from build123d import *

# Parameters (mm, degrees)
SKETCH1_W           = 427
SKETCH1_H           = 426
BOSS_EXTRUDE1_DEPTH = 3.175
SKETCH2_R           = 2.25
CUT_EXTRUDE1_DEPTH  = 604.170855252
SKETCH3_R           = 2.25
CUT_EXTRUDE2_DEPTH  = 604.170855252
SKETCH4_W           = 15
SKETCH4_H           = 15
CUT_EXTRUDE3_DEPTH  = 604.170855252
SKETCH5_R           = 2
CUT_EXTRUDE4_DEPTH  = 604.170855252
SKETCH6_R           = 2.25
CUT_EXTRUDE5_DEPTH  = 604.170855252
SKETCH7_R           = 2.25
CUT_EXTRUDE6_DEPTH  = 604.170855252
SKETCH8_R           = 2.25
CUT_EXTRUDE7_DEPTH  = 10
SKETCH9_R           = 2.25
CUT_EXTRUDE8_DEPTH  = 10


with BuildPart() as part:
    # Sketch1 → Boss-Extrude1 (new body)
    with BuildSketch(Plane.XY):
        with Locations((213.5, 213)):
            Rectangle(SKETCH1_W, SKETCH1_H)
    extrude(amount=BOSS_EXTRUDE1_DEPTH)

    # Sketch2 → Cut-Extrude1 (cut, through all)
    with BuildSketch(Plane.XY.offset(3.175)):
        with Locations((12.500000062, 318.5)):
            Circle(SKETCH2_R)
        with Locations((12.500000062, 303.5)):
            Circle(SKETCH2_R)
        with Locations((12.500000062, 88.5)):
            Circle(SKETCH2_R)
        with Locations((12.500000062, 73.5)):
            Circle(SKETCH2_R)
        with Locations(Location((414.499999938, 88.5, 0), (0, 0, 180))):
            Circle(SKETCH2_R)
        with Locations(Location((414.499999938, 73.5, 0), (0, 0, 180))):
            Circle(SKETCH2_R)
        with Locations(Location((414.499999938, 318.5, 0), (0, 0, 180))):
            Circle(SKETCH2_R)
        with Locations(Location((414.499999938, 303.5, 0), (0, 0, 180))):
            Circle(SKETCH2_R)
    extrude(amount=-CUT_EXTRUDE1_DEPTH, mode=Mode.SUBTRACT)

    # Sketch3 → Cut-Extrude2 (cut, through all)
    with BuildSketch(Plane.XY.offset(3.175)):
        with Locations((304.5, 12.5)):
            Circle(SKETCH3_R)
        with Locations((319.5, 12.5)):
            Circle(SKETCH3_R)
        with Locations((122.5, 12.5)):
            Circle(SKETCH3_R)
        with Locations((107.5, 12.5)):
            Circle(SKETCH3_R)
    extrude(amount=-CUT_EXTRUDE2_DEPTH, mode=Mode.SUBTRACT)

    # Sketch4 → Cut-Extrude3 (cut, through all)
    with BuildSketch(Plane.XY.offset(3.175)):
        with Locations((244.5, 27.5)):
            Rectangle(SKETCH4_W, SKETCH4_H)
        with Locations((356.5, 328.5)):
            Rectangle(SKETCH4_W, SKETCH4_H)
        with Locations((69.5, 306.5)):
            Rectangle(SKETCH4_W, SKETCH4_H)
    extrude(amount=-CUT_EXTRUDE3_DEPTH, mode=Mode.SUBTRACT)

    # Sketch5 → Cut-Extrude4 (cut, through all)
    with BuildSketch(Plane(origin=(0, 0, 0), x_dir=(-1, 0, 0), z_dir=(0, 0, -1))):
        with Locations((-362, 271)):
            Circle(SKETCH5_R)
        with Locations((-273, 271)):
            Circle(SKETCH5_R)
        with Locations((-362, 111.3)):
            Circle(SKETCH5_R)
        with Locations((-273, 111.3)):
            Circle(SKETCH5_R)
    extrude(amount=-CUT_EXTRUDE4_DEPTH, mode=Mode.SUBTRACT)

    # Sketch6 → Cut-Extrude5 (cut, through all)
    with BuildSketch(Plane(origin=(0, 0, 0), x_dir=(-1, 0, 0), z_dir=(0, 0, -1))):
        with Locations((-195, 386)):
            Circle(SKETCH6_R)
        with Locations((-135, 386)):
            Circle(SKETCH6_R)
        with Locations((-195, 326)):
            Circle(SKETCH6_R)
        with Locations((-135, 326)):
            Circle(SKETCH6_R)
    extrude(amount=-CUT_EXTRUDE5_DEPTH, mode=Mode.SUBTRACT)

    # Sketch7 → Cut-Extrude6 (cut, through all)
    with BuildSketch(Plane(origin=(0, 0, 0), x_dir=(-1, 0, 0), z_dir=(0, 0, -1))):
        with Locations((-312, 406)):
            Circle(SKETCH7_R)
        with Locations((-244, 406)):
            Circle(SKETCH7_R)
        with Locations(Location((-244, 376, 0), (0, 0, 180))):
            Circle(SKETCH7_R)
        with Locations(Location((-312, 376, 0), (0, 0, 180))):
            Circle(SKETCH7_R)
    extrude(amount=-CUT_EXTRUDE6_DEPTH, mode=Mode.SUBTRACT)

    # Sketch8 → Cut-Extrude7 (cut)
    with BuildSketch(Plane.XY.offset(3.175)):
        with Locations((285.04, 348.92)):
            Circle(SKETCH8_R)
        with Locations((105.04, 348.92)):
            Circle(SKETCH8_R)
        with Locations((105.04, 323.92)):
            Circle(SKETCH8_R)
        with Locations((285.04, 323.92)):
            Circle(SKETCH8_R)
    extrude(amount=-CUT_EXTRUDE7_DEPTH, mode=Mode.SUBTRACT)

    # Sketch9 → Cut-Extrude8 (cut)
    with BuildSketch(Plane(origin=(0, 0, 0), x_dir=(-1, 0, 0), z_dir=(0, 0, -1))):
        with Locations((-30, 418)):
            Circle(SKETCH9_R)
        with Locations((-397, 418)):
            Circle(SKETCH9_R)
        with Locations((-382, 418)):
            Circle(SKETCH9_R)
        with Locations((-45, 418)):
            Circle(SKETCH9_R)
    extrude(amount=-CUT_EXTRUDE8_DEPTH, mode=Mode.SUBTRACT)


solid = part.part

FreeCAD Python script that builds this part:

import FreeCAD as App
import Part
import Sketcher


def add_polygon(sketch, points):
    """Adds a closed chain of lines whose ends are joined by coincident constraints."""
    first, n = sketch.GeometryCount, len(points)
    for a, b in zip(points, points[1:] + points[:1]):
        sketch.addGeometry(Part.LineSegment(App.Vector(*a, 0), App.Vector(*b, 0)), False)
    for i in range(n):
        sketch.addConstraint(Sketcher.Constraint("Coincident", first + i, 2, first + (i + 1) % n, 1))

doc = App.newDocument("Part")
params = doc.addObject("Spreadsheet::Sheet", "Params")
for row, (alias, value) in enumerate([
    ("sketch1_width", "427 mm"),
    ("sketch1_height", "426 mm"),
    ("pad1_length", "3.175 mm"),
    ("sketch2_diameter", "4.5 mm"),
    ("sketch3_diameter", "4.5 mm"),
    ("sketch4_width", "15 mm"),
    ("sketch5_diameter", "4 mm"),
    ("sketch6_diameter", "4.5 mm"),
    ("sketch7_diameter", "4.5 mm"),
    ("sketch8_diameter", "4.5 mm"),
    ("pocket7_length", "10 mm"),
    ("sketch9_diameter", "4.5 mm"),
    ("pocket8_length", "10 mm"),
], start=1):
    params.set(f"A{row}", alias)
    params.set(f"B{row}", "=" + value)
    params.setAlias(f"B{row}", alias)

body = doc.addObject("PartDesign::Body", "Body")

sketch1 = doc.addObject("Sketcher::SketchObject", "Sketch")
body.addObject(sketch1)
sketch1.AttachmentSupport = (doc.XY_Plane, [""])
sketch1.MapMode = "FlatFace"
add_polygon(sketch1, [(0, 426), (0, 0), (427, 0), (427, 426)])
sketch1.addConstraint(Sketcher.Constraint("Vertical", 0))
sketch1.addConstraint(Sketcher.Constraint("Horizontal", 1))
sketch1.addConstraint(Sketcher.Constraint("Vertical", 2))
sketch1.addConstraint(Sketcher.Constraint("Horizontal", 3))
sketch1.addConstraint(Sketcher.Constraint("Coincident", 0, 2, -1, 1))
sketch1.addConstraint(Sketcher.Constraint("DistanceX", 1, 1, 1, 2, 427.0))
sketch1.addConstraint(Sketcher.Constraint("DistanceY", 0, 2, 0, 1, 426.0))
sketch1.setExpression("Constraints[9]", "Params.sketch1_width")
sketch1.setExpression("Constraints[10]", "Params.sketch1_height")
pad1 = doc.addObject("PartDesign::Pad", "Pad")
body.addObject(pad1)
pad1.Profile = sketch1
pad1.setExpression("Length", "Params.pad1_length")

sketch2 = doc.addObject("Sketcher::SketchObject", "Sketch001")
body.addObject(sketch2)
sketch2.AttachmentSupport = (doc.XY_Plane, [""])
sketch2.MapMode = "FlatFace"
sketch2.AttachmentOffset = App.Placement(App.Vector(0, 0, 3.175), App.Rotation())
sketch2.addGeometry(Part.Circle(App.Vector(12.5, 318.5, 0), App.Vector(0, 0, 1), 2.25), False)
sketch2.addGeometry(Part.Circle(App.Vector(12.5, 303.5, 0), App.Vector(0, 0, 1), 2.25), False)
sketch2.addGeometry(Part.Circle(App.Vector(12.5, 88.5, 0), App.Vector(0, 0, 1), 2.25), False)
sketch2.addGeometry(Part.Circle(App.Vector(12.5, 73.5, 0), App.Vector(0, 0, 1), 2.25), False)
sketch2.addGeometry(Part.Circle(App.Vector(414.5, 88.5, 0), App.Vector(0, 0, 1), 2.25), False)
sketch2.addGeometry(Part.Circle(App.Vector(414.5, 73.5, 0), App.Vector(0, 0, 1), 2.25), False)
sketch2.addGeometry(Part.Circle(App.Vector(414.5, 318.5, 0), App.Vector(0, 0, 1), 2.25), False)
sketch2.addGeometry(Part.Circle(App.Vector(414.5, 303.5, 0), App.Vector(0, 0, 1), 2.25), False)
sketch2.addConstraint(Sketcher.Constraint("Equal", 0, 1))
sketch2.addConstraint(Sketcher.Constraint("Equal", 1, 2))
sketch2.addConstraint(Sketcher.Constraint("Equal", 2, 3))
sketch2.addConstraint(Sketcher.Constraint("Equal", 3, 4))
sketch2.addConstraint(Sketcher.Constraint("Equal", 4, 5))
sketch2.addConstraint(Sketcher.Constraint("Equal", 5, 6))
sketch2.addConstraint(Sketcher.Constraint("Equal", 6, 7))
sketch2.addConstraint(Sketcher.Constraint("Horizontal", 2, 3, 4, 3))
sketch2.addConstraint(Sketcher.Constraint("Horizontal", 3, 3, 5, 3))
sketch2.addConstraint(Sketcher.Constraint("Horizontal", 0, 3, 6, 3))
sketch2.addConstraint(Sketcher.Constraint("Horizontal", 1, 3, 7, 3))
sketch2.addConstraint(Sketcher.Constraint("Vertical", 0, 3, 1, 3))
sketch2.addConstraint(Sketcher.Constraint("Vertical", 1, 3, 2, 3))
sketch2.addConstraint(Sketcher.Constraint("Vertical", 2, 3, 3, 3))
sketch2.addConstraint(Sketcher.Constraint("Vertical", 4, 3, 5, 3))
sketch2.addConstraint(Sketcher.Constraint("Vertical", 5, 3, 6, 3))
sketch2.addConstraint(Sketcher.Constraint("Vertical", 6, 3, 7, 3))
sketch2.addConstraint(Sketcher.Constraint("Diameter", 0, 4.5))
sketch2.addConstraint(Sketcher.Constraint("DistanceY", 1, 3, 0, 3, 15.0))
sketch2.addConstraint(Sketcher.Constraint("DistanceY", 2, 3, 1, 3, 215.0))
sketch2.addConstraint(Sketcher.Constraint("DistanceY", 3, 3, 2, 3, 15.0))
sketch2.addConstraint(Sketcher.Constraint("DistanceX", 2, 3, 4, 3, 402.0))
sketch2.addConstraint(Sketcher.Constraint("DistanceX", -1, 1, 0, 3, 12.5))
sketch2.addConstraint(Sketcher.Constraint("DistanceY", -1, 1, 0, 3, 318.5))
sketch2.setExpression("Constraints[17]", "Params.sketch2_diameter")
pocket1 = doc.addObject("PartDesign::Pocket", "Pocket")
body.addObject(pocket1)
pocket1.Profile = sketch2
pocket1.Type = "ThroughAll"

sketch3 = doc.addObject("Sketcher::SketchObject", "Sketch002")
body.addObject(sketch3)
sketch3.AttachmentSupport = (doc.XY_Plane, [""])
sketch3.MapMode = "FlatFace"
sketch3.AttachmentOffset = App.Placement(App.Vector(0, 0, 3.175), App.Rotation())
sketch3.addGeometry(Part.Circle(App.Vector(304.5, 12.5, 0), App.Vector(0, 0, 1), 2.25), False)
sketch3.addGeometry(Part.Circle(App.Vector(319.5, 12.5, 0), App.Vector(0, 0, 1), 2.25), False)
sketch3.addGeometry(Part.Circle(App.Vector(122.5, 12.5, 0), App.Vector(0, 0, 1), 2.25), False)
sketch3.addGeometry(Part.Circle(App.Vector(107.5, 12.5, 0), App.Vector(0, 0, 1), 2.25), False)
sketch3.addConstraint(Sketcher.Constraint("Equal", 0, 1))
sketch3.addConstraint(Sketcher.Constraint("Equal", 1, 2))
sketch3.addConstraint(Sketcher.Constraint("Equal", 2, 3))
sketch3.addConstraint(Sketcher.Constraint("Horizontal", 0, 3, 1, 3))
sketch3.addConstraint(Sketcher.Constraint("Horizontal", 1, 3, 2, 3))
sketch3.addConstraint(Sketcher.Constraint("Horizontal", 2, 3, 3, 3))
sketch3.addConstraint(Sketcher.Constraint("Diameter", 0, 4.5))
sketch3.addConstraint(Sketcher.Constraint("DistanceX", 0, 3, 1, 3, 15.0))
sketch3.addConstraint(Sketcher.Constraint("DistanceX", 2, 3, 0, 3, 182.0))
sketch3.addConstraint(Sketcher.Constraint("DistanceX", 3, 3, 2, 3, 15.0))
sketch3.addConstraint(Sketcher.Constraint("DistanceX", -1, 1, 0, 3, 304.5))
sketch3.addConstraint(Sketcher.Constraint("DistanceY", -1, 1, 0, 3, 12.5))
sketch3.setExpression("Constraints[6]", "Params.sketch3_diameter")
pocket2 = doc.addObject("PartDesign::Pocket", "Pocket001")
body.addObject(pocket2)
pocket2.Profile = sketch3
pocket2.Type = "ThroughAll"

sketch4 = doc.addObject("Sketcher::SketchObject", "Sketch003")
body.addObject(sketch4)
sketch4.AttachmentSupport = (doc.XY_Plane, [""])
sketch4.MapMode = "FlatFace"
sketch4.AttachmentOffset = App.Placement(App.Vector(0, 0, 3.175), App.Rotation())
add_polygon(sketch4, [(237, 35), (237, 20), (252, 20), (252, 35)])
add_polygon(sketch4, [(349, 336), (349, 321), (364, 321), (364, 336)])
add_polygon(sketch4, [(62, 314), (62, 299), (77, 299), (77, 314)])
sketch4.addConstraint(Sketcher.Constraint("Vertical", 0))
sketch4.addConstraint(Sketcher.Constraint("Horizontal", 1))
sketch4.addConstraint(Sketcher.Constraint("Vertical", 2))
sketch4.addConstraint(Sketcher.Constraint("Horizontal", 3))
sketch4.addConstraint(Sketcher.Constraint("Vertical", 4))
sketch4.addConstraint(Sketcher.Constraint("Horizontal", 5))
sketch4.addConstraint(Sketcher.Constraint("Vertical", 6))
sketch4.addConstraint(Sketcher.Constraint("Horizontal", 7))
sketch4.addConstraint(Sketcher.Constraint("Vertical", 8))
sketch4.addConstraint(Sketcher.Constraint("Horizontal", 9))
sketch4.addConstraint(Sketcher.Constraint("Vertical", 10))
sketch4.addConstraint(Sketcher.Constraint("Horizontal", 11))
sketch4.addConstraint(Sketcher.Constraint("Equal", 3, 5))
sketch4.addConstraint(Sketcher.Constraint("Equal", 7, 9))
sketch4.addConstraint(Sketcher.Constraint("Equal", 11, 0))
sketch4.addConstraint(Sketcher.Constraint("Equal", 2, 4))
sketch4.addConstraint(Sketcher.Constraint("Equal", 6, 8))
sketch4.addConstraint(Sketcher.Constraint("DistanceX", 1, 1, 1, 2, 15.0))
sketch4.addConstraint(Sketcher.Constraint("DistanceX", -1, 1, 0, 2, 237.0))
sketch4.addConstraint(Sketcher.Constraint("DistanceY", -1, 1, 0, 2, 20.0))
sketch4.addConstraint(Sketcher.Constraint("DistanceX", -1, 1, 4, 2, 349.0))
sketch4.addConstraint(Sketcher.Constraint("DistanceY", -1, 1, 4, 2, 321.0))
sketch4.addConstraint(Sketcher.Constraint("DistanceX", -1, 1, 8, 2, 62.0))
sketch4.addConstraint(Sketcher.Constraint("DistanceY", -1, 1, 8, 2, 299.0))
sketch4.setExpression("Constraints[29]", "Params.sketch4_width")
pocket3 = doc.addObject("PartDesign::Pocket", "Pocket002")
body.addObject(pocket3)
pocket3.Profile = sketch4
pocket3.Type = "ThroughAll"

sketch5 = doc.addObject("Sketcher::SketchObject", "Sketch004")
body.addObject(sketch5)
sketch5.AttachmentSupport = (doc.XY_Plane, [""])
sketch5.MapMode = "FlatFace"
sketch5.addGeometry(Part.Circle(App.Vector(362, 271, 0), App.Vector(0, 0, 1), 2), False)
sketch5.addGeometry(Part.Circle(App.Vector(273, 271, 0), App.Vector(0, 0, 1), 2), False)
sketch5.addGeometry(Part.Circle(App.Vector(362, 111.3, 0), App.Vector(0, 0, 1), 2), False)
sketch5.addGeometry(Part.Circle(App.Vector(273, 111.3, 0), App.Vector(0, 0, 1), 2), False)
sketch5.addConstraint(Sketcher.Constraint("Equal", 0, 1))
sketch5.addConstraint(Sketcher.Constraint("Equal", 1, 2))
sketch5.addConstraint(Sketcher.Constraint("Equal", 2, 3))
sketch5.addConstraint(Sketcher.Constraint("Horizontal", 0, 3, 1, 3))
sketch5.addConstraint(Sketcher.Constraint("Horizontal", 2, 3, 3, 3))
sketch5.addConstraint(Sketcher.Constraint("Vertical", 0, 3, 2, 3))
sketch5.addConstraint(Sketcher.Constraint("Vertical", 1, 3, 3, 3))
sketch5.addConstraint(Sketcher.Constraint("Diameter", 0, 4.0))
sketch5.addConstraint(Sketcher.Constraint("DistanceX", -1, 1, 0, 3, 362.0))
sketch5.addConstraint(Sketcher.Constraint("DistanceY", -1, 1, 0, 3, 271.0))
sketch5.addConstraint(Sketcher.Constraint("DistanceX", -1, 1, 1, 3, 273.0))
sketch5.addConstraint(Sketcher.Constraint("DistanceY", -1, 1, 2, 3, 111.3))
sketch5.setExpression("Constraints[7]", "Params.sketch5_diameter")
pocket4 = doc.addObject("PartDesign::Pocket", "Pocket003")
body.addObject(pocket4)
pocket4.Profile = sketch5
pocket4.Type = "ThroughAll"
pocket4.Reversed = True

sketch6 = doc.addObject("Sketcher::SketchObject", "Sketch005")
body.addObject(sketch6)
sketch6.AttachmentSupport = (doc.XY_Plane, [""])
sketch6.MapMode = "FlatFace"
sketch6.addGeometry(Part.Circle(App.Vector(195, 386, 0), App.Vector(0, 0, 1), 2.25), False)
sketch6.addGeometry(Part.Circle(App.Vector(135, 386, 0), App.Vector(0, 0, 1), 2.25), False)
sketch6.addGeometry(Part.Circle(App.Vector(195, 326, 0), App.Vector(0, 0, 1), 2.25), False)
sketch6.addGeometry(Part.Circle(App.Vector(135, 326, 0), App.Vector(0, 0, 1), 2.25), False)
sketch6.addConstraint(Sketcher.Constraint("Equal", 0, 1))
sketch6.addConstraint(Sketcher.Constraint("Equal", 1, 2))
sketch6.addConstraint(Sketcher.Constraint("Equal", 2, 3))
sketch6.addConstraint(Sketcher.Constraint("Horizontal", 0, 3, 1, 3))
sketch6.addConstraint(Sketcher.Constraint("Horizontal", 2, 3, 3, 3))
sketch6.addConstraint(Sketcher.Constraint("Vertical", 0, 3, 2, 3))
sketch6.addConstraint(Sketcher.Constraint("Vertical", 1, 3, 3, 3))
sketch6.addConstraint(Sketcher.Constraint("Diameter", 0, 4.5))
sketch6.addConstraint(Sketcher.Constraint("DistanceX", -1, 1, 0, 3, 195.0))
sketch6.addConstraint(Sketcher.Constraint("DistanceY", -1, 1, 0, 3, 386.0))
sketch6.addConstraint(Sketcher.Constraint("DistanceX", -1, 1, 1, 3, 135.0))
sketch6.addConstraint(Sketcher.Constraint("DistanceY", -1, 1, 2, 3, 326.0))
sketch6.setExpression("Constraints[7]", "Params.sketch6_diameter")
pocket5 = doc.addObject("PartDesign::Pocket", "Pocket004")
body.addObject(pocket5)
pocket5.Profile = sketch6
pocket5.Type = "ThroughAll"
pocket5.Reversed = True

sketch7 = doc.addObject("Sketcher::SketchObject", "Sketch006")
body.addObject(sketch7)
sketch7.AttachmentSupport = (doc.XY_Plane, [""])
sketch7.MapMode = "FlatFace"
sketch7.addGeometry(Part.Circle(App.Vector(312, 406, 0), App.Vector(0, 0, 1), 2.25), False)
sketch7.addGeometry(Part.Circle(App.Vector(244, 406, 0), App.Vector(0, 0, 1), 2.25), False)
sketch7.addGeometry(Part.Circle(App.Vector(244, 376, 0), App.Vector(0, 0, 1), 2.25), False)
sketch7.addGeometry(Part.Circle(App.Vector(312, 376, 0), App.Vector(0, 0, 1), 2.25), False)
sketch7.addConstraint(Sketcher.Constraint("Equal", 0, 1))
sketch7.addConstraint(Sketcher.Constraint("Equal", 1, 2))
sketch7.addConstraint(Sketcher.Constraint("Equal", 2, 3))
sketch7.addConstraint(Sketcher.Constraint("Horizontal", 0, 3, 1, 3))
sketch7.addConstraint(Sketcher.Constraint("Horizontal", 2, 3, 3, 3))
sketch7.addConstraint(Sketcher.Constraint("Vertical", 1, 3, 2, 3))
sketch7.addConstraint(Sketcher.Constraint("Vertical", 0, 3, 3, 3))
sketch7.addConstraint(Sketcher.Constraint("Diameter", 0, 4.5))
sketch7.addConstraint(Sketcher.Constraint("DistanceX", -1, 1, 0, 3, 312.0))
sketch7.addConstraint(Sketcher.Constraint("DistanceY", -1, 1, 0, 3, 406.0))
sketch7.addConstraint(Sketcher.Constraint("DistanceX", -1, 1, 1, 3, 244.0))
sketch7.addConstraint(Sketcher.Constraint("DistanceY", -1, 1, 2, 3, 376.0))
sketch7.setExpression("Constraints[7]", "Params.sketch7_diameter")
pocket6 = doc.addObject("PartDesign::Pocket", "Pocket005")
body.addObject(pocket6)
pocket6.Profile = sketch7
pocket6.Type = "ThroughAll"
pocket6.Reversed = True

sketch8 = doc.addObject("Sketcher::SketchObject", "Sketch007")
body.addObject(sketch8)
sketch8.AttachmentSupport = (doc.XY_Plane, [""])
sketch8.MapMode = "FlatFace"
sketch8.AttachmentOffset = App.Placement(App.Vector(0, 0, 3.175), App.Rotation())
sketch8.addGeometry(Part.Circle(App.Vector(285.04, 348.92, 0), App.Vector(0, 0, 1), 2.25), False)
sketch8.addGeometry(Part.Circle(App.Vector(105.04, 348.92, 0), App.Vector(0, 0, 1), 2.25), False)
sketch8.addGeometry(Part.Circle(App.Vector(105.04, 323.92, 0), App.Vector(0, 0, 1), 2.25), False)
sketch8.addGeometry(Part.Circle(App.Vector(285.04, 323.92, 0), App.Vector(0, 0, 1), 2.25), False)
sketch8.addConstraint(Sketcher.Constraint("Equal", 0, 1))
sketch8.addConstraint(Sketcher.Constraint("Equal", 1, 2))
sketch8.addConstraint(Sketcher.Constraint("Equal", 2, 3))
sketch8.addConstraint(Sketcher.Constraint("Horizontal", 0, 3, 1, 3))
sketch8.addConstraint(Sketcher.Constraint("Horizontal", 2, 3, 3, 3))
sketch8.addConstraint(Sketcher.Constraint("Vertical", 1, 3, 2, 3))
sketch8.addConstraint(Sketcher.Constraint("Vertical", 0, 3, 3, 3))
sketch8.addConstraint(Sketcher.Constraint("Diameter", 0, 4.5))
sketch8.addConstraint(Sketcher.Constraint("DistanceX", 1, 3, 0, 3, 180.0))
sketch8.addConstraint(Sketcher.Constraint("DistanceY", 2, 3, 1, 3, 25.0))
sketch8.addConstraint(Sketcher.Constraint("DistanceX", -1, 1, 0, 3, 285.04))
sketch8.addConstraint(Sketcher.Constraint("DistanceY", -1, 1, 0, 3, 348.92))
sketch8.setExpression("Constraints[7]", "Params.sketch8_diameter")
pocket7 = doc.addObject("PartDesign::Pocket", "Pocket006")
body.addObject(pocket7)
pocket7.Profile = sketch8
pocket7.setExpression("Length", "Params.pocket7_length")

sketch9 = doc.addObject("Sketcher::SketchObject", "Sketch008")
body.addObject(sketch9)
sketch9.AttachmentSupport = (doc.XY_Plane, [""])
sketch9.MapMode = "FlatFace"
sketch9.addGeometry(Part.Circle(App.Vector(30, 418, 0), App.Vector(0, 0, 1), 2.25), False)
sketch9.addGeometry(Part.Circle(App.Vector(397, 418, 0), App.Vector(0, 0, 1), 2.25), False)
sketch9.addGeometry(Part.Circle(App.Vector(382, 418, 0), App.Vector(0, 0, 1), 2.25), False)
sketch9.addGeometry(Part.Circle(App.Vector(45, 418, 0), App.Vector(0, 0, 1), 2.25), False)
sketch9.addConstraint(Sketcher.Constraint("Equal", 0, 1))
sketch9.addConstraint(Sketcher.Constraint("Equal", 1, 2))
sketch9.addConstraint(Sketcher.Constraint("Equal", 2, 3))
sketch9.addConstraint(Sketcher.Constraint("Horizontal", 0, 3, 1, 3))
sketch9.addConstraint(Sketcher.Constraint("Horizontal", 1, 3, 2, 3))
sketch9.addConstraint(Sketcher.Constraint("Horizontal", 2, 3, 3, 3))
sketch9.addConstraint(Sketcher.Constraint("Diameter", 0, 4.5))
sketch9.addConstraint(Sketcher.Constraint("DistanceX", -1, 1, 0, 3, 30.0))
sketch9.addConstraint(Sketcher.Constraint("DistanceY", -1, 1, 0, 3, 418.0))
sketch9.addConstraint(Sketcher.Constraint("DistanceX", -1, 1, 1, 3, 397.0))
sketch9.addConstraint(Sketcher.Constraint("DistanceX", -1, 1, 2, 3, 382.0))
sketch9.addConstraint(Sketcher.Constraint("DistanceX", -1, 1, 3, 3, 45.0))
sketch9.setExpression("Constraints[6]", "Params.sketch9_diameter")
pocket8 = doc.addObject("PartDesign::Pocket", "Pocket007")
body.addObject(pocket8)
pocket8.Profile = sketch9
pocket8.setExpression("Length", "Params.pocket8_length")
pocket8.Reversed = True

doc.recompute()
